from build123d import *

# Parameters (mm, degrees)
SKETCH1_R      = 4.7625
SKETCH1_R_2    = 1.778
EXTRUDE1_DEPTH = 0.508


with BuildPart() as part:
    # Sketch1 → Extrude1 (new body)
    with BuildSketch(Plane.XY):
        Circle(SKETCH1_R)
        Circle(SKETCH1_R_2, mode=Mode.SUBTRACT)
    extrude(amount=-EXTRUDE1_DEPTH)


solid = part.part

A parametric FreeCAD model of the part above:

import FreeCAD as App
import Part
import Sketcher

V = App.Vector
Q = App.Units.Quantity

doc = App.newDocument("Part")
params = doc.addObject("Spreadsheet::Sheet", "Params")
for row, (alias, value) in enumerate([
    ("sketch1_diameter", "0.14 in"),
    ("sketch1_diameter2", "0.375 in"),
    ("pad1_length", "0.02 in"),
], start=1):
    params.set(f"A{row}", alias)
    params.set(f"B{row}", "=" + value)
    params.setAlias(f"B{row}", alias)

body = doc.addObject("PartDesign::Body", "Body")

sketch1 = body.newObject("Sketcher::SketchObject", "Sketch")
sketch1.AttachmentSupport = (doc.getObject("XY_Plane"), [""])
sketch1.MapMode = "FlatFace"
sketch1.addGeometry(Part.Circle(V(0, 0, 0), V(0, 0, 1), 4.8), False)
sketch1.addGeometry(Part.Circle(V(0, 0, 0), V(0, 0, 1), 1.8), False)
sketch1.addConstraint(Sketcher.Constraint("Coincident", 0, 3, -1, 1))
sketch1.addConstraint(Sketcher.Constraint("Coincident", 1, 3, -1, 1))
sketch1.addConstraint(Sketcher.Constraint("Diameter", 1, Q("0.14 in")))
sketch1.addConstraint(Sketcher.Constraint("Diameter", 0, Q("0.375 in")))
sketch1.setExpression("Constraints[2]", "Params.sketch1_diameter")
sketch1.setExpression("Constraints[3]", "Params.sketch1_diameter2")
pad1 = body.newObject("PartDesign::Pad", "Pad")
pad1.Profile = sketch1
pad1.setExpression("Length", "Params.pad1_length")
pad1.Reversed = True

doc.recompute()
